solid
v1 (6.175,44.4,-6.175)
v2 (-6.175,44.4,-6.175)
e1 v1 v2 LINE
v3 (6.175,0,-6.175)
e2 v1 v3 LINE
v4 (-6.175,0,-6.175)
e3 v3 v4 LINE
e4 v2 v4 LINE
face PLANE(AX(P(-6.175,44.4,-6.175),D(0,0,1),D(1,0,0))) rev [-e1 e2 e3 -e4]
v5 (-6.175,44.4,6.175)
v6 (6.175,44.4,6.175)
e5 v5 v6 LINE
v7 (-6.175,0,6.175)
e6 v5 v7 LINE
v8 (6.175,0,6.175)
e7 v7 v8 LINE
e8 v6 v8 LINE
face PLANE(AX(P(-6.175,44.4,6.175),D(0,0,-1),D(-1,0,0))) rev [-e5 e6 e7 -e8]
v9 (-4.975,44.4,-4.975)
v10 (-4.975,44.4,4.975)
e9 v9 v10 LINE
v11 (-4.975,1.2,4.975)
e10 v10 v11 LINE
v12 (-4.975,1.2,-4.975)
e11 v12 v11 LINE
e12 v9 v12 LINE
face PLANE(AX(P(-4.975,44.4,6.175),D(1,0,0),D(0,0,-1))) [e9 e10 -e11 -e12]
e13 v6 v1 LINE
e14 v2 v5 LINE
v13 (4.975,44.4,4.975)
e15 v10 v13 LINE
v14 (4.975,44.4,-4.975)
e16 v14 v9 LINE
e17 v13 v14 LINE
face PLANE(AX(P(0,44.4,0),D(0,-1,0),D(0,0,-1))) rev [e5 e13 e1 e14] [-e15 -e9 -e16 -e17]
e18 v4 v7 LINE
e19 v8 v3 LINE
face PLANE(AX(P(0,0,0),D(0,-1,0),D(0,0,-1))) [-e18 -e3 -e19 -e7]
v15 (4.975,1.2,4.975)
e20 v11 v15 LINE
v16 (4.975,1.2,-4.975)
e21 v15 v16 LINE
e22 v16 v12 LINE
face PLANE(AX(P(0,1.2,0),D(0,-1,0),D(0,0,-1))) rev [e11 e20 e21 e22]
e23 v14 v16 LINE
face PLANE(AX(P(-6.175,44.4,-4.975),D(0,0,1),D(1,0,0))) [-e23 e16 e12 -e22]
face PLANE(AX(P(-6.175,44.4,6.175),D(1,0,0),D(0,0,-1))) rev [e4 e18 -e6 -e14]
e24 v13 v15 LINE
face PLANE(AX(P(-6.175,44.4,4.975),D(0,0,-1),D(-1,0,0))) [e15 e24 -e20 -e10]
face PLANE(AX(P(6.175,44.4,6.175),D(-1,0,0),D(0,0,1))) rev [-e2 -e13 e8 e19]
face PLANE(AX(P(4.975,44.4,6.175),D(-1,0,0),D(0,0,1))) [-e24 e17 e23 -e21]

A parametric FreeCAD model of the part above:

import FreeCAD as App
import Part
import Sketcher
from FreeCAD import Vector
Q = App.Units.Quantity


def faces_at(feature, points):
    """Names of the faces that lie closest to the given points."""
    faces = feature.Shape.Faces
    near = lambda p: min(range(len(faces)), key=lambda i: faces[i].distToShape(Part.Vertex(*p))[0])
    return sorted({f"Face{near(p) + 1}" for p in points})


def add_polygon(sketch, points):
    """Adds a closed chain of lines whose ends are joined by coincident constraints."""
    first, n = sketch.GeometryCount, len(points)
    for a, b in zip(points, points[1:] + points[:1]):
        sketch.addGeometry(Part.LineSegment(App.Vector(*a, 0), App.Vector(*b, 0)), False)
    for i in range(n):
        sketch.addConstraint(Sketcher.Constraint("Coincident", first + i, 2, first + (i + 1) % n, 1))

doc = App.newDocument("Part")
body = doc.addObject("PartDesign::Body", "Body")

# Sketch on XZ plane
sketch1 = doc.addObject("Sketcher::SketchObject", "Sketch")
body.addObject(sketch1)
sketch1.AttachmentSupport = (doc.XZ_Plane, [""])
sketch1.MapMode = "FlatFace"
add_polygon(sketch1, [(-6, -6), (-6, 6), (6, 6), (6, -6)])  # lines 0-3
sketch1.addConstraint([
    Sketcher.Constraint("Vertical", 0),
    Sketcher.Constraint("Horizontal", 1),
    Sketcher.Constraint("Vertical", 2),
    Sketcher.Constraint("Horizontal", 3),
    Sketcher.Constraint("Symmetric", 0, 2, 2, 2, -1, 1),
    Sketcher.Constraint("Equal", 3, 0),
    Sketcher.Constraint("DistanceX", 1, 1, 1, 2, Q("12.35 mm")),
])
pad1 = doc.addObject("PartDesign::Pad", "Pad")
body.addObject(pad1)
pad1.Profile = sketch1
pad1.Length = 44.4
pad1.Reversed = True
doc.recompute()

thickness = doc.addObject("PartDesign::Thickness", "Thickness")
body.addObject(thickness)
thickness.Base = (pad1, faces_at(pad1, [(0, 44.4, 0)]))
thickness.Value = 1.2
thickness.Reversed = True
thickness.Join = "Intersection"

doc.recompute()
